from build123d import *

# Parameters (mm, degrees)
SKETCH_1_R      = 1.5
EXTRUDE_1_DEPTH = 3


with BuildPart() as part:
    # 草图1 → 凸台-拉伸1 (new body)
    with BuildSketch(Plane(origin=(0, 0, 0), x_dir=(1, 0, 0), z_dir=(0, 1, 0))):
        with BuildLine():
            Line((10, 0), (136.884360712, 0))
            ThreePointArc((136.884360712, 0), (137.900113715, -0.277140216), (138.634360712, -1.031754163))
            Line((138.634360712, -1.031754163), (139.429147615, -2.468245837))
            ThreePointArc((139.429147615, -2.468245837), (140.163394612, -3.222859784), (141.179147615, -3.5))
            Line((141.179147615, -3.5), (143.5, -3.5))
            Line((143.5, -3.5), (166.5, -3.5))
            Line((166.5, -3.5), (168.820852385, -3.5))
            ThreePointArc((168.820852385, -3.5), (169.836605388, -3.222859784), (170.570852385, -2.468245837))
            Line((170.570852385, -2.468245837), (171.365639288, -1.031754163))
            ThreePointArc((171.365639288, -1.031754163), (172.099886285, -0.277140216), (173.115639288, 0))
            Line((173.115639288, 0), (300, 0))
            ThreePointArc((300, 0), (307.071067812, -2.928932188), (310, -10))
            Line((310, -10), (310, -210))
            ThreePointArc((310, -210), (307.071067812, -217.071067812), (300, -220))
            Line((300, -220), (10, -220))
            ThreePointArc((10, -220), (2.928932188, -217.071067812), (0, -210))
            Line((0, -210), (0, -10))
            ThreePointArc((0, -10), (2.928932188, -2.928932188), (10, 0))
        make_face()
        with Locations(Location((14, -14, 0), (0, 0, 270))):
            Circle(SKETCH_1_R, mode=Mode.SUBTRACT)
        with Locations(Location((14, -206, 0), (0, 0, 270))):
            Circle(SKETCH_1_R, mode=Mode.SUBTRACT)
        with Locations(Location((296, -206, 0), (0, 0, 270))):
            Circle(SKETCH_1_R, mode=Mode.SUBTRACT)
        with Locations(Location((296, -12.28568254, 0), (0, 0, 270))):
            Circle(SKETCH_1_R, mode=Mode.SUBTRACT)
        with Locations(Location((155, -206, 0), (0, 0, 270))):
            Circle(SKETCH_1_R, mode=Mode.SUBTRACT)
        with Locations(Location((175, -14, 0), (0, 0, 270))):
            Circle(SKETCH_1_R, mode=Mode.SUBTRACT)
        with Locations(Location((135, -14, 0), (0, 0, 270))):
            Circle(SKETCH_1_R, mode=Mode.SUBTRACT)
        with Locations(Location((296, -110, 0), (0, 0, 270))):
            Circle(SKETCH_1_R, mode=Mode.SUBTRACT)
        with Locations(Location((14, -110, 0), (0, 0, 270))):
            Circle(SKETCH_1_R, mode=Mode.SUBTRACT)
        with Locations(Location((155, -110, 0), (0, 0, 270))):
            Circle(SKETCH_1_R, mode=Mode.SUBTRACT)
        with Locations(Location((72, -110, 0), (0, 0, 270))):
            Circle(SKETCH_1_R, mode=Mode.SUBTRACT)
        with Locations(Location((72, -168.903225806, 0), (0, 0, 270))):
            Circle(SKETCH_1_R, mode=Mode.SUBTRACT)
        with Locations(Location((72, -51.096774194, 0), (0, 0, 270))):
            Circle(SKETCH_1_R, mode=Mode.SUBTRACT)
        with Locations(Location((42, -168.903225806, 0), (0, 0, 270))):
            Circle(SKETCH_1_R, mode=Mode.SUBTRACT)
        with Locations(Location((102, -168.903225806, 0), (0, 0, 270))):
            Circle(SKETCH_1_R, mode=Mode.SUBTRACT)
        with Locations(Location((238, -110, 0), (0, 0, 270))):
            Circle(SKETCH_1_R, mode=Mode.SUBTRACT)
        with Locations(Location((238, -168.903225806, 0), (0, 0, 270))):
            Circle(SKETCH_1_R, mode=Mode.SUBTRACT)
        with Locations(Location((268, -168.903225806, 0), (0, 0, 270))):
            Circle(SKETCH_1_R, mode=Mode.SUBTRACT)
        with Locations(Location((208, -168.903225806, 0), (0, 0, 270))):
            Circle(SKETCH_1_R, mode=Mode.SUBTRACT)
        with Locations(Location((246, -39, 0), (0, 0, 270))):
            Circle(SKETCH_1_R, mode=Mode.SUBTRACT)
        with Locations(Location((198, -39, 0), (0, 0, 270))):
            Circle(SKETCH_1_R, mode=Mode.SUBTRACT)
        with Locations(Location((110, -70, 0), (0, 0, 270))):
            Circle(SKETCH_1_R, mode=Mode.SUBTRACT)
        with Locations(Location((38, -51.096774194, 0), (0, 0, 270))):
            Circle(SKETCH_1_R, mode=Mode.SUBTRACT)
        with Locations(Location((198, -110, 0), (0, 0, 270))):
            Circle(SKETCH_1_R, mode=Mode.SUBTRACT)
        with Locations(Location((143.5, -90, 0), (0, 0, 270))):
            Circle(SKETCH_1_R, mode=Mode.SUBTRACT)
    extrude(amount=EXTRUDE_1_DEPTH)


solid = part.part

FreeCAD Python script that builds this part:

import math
import FreeCAD as App
import Part
import Sketcher
Q = App.Units.Quantity

doc = App.newDocument("Part")
body = doc.addObject("PartDesign::Body", "Body")

# Sketch on XZ plane
sketch1 = body.newObject("Sketcher::SketchObject", "Sketch")
sketch1.AttachmentSupport = (doc.getObject("XZ_Plane"), [""])
sketch1.MapMode = "FlatFace"
sketch1.addGeometry(Part.LineSegment(App.Vector(136.9, 0, 0), App.Vector(10, 0, 0)), False)
sketch1.addGeometry(Part.ArcOfCircle(Part.Circle(App.Vector(10, 10, 0), App.Vector(0, 0, 1), 10), math.radians(180), math.radians(270)), False)
sketch1.addGeometry(Part.LineSegment(App.Vector(0, 10, 0), App.Vector(0, 210, 0)), False)
sketch1.addGeometry(Part.ArcOfCircle(Part.Circle(App.Vector(10, 210, 0), App.Vector(0, 0, 1), 10), math.radians(90), math.radians(180)), False)
sketch1.addGeometry(Part.LineSegment(App.Vector(10, 220, 0), App.Vector(300, 220, 0)), False)
sketch1.addGeometry(Part.ArcOfCircle(Part.Circle(App.Vector(300, 210, 0), App.Vector(0, 0, 1), 10), math.radians(0), math.radians(90)), False)
sketch1.addGeometry(Part.LineSegment(App.Vector(310, 210, 0), App.Vector(310, 10, 0)), False)
sketch1.addGeometry(Part.ArcOfCircle(Part.Circle(App.Vector(300, 10, 0), App.Vector(0, 0, 1), 10), math.radians(-90), math.radians(0)), False)
sketch1.addGeometry(Part.LineSegment(App.Vector(300, 0, 0), App.Vector(173.1, 0, 0)), False)
sketch1.addGeometry(Part.ArcOfCircle(Part.Circle(App.Vector(173.1, 2, 0), App.Vector(0, 0, 1), 2), math.radians(-151), math.radians(-90)), False)
sketch1.addGeometry(Part.LineSegment(App.Vector(171.4, 1, 0), App.Vector(170.6, 2.5, 0)), False)
sketch1.addGeometry(Part.ArcOfCircle(Part.Circle(App.Vector(168.8, 1.5, 0), App.Vector(0, 0, 1), 2), math.radians(29), math.radians(90)), False)
sketch1.addGeometry(Part.LineSegment(App.Vector(168.8, 3.5, 0), App.Vector(141.2, 3.5, 0)), False)
sketch1.addGeometry(Part.ArcOfCircle(Part.Circle(App.Vector(141.2, 1.5, 0), App.Vector(0, 0, 1), 2), math.radians(90), math.radians(151)), False)
sketch1.addGeometry(Part.LineSegment(App.Vector(139.4, 2.5, 0), App.Vector(138.6, 1, 0)), False)
sketch1.addGeometry(Part.ArcOfCircle(Part.Circle(App.Vector(136.9, 2, 0), App.Vector(0, 0, 1), 2), math.radians(-90), math.radians(-29)), False)
sketch1.addGeometry(Part.Circle(App.Vector(296, 206, 0), App.Vector(0, 0, 1), 1.5), False)
sketch1.addGeometry(Part.Circle(App.Vector(268, 168.9, 0), App.Vector(0, 0, 1), 1.5), False)
sketch1.addGeometry(Part.Circle(App.Vector(238, 168.9, 0), App.Vector(0, 0, 1), 1.5), False)
sketch1.addGeometry(Part.Circle(App.Vector(208, 168.9, 0), App.Vector(0, 0, 1), 1.5), False)
sketch1.addGeometry(Part.Circle(App.Vector(296, 110, 0), App.Vector(0, 0, 1), 1.5), False)
sketch1.addGeometry(Part.Circle(App.Vector(238, 110, 0), App.Vector(0, 0, 1), 1.5), False)
sketch1.addGeometry(Part.Circle(App.Vector(198, 110, 0), App.Vector(0, 0, 1), 1.5), False)
sketch1.addGeometry(Part.Circle(App.Vector(155, 206, 0), App.Vector(0, 0, 1), 1.5), False)
sketch1.addGeometry(Part.Circle(App.Vector(102, 168.9, 0), App.Vector(0, 0, 1), 1.5), False)
sketch1.addGeometry(Part.Circle(App.Vector(14, 206, 0), App.Vector(0, 0, 1), 1.5), False)
sketch1.addGeometry(Part.Circle(App.Vector(72, 168.9, 0), App.Vector(0, 0, 1), 1.5), False)
sketch1.addGeometry(Part.Circle(App.Vector(42, 168.9, 0), App.Vector(0, 0, 1), 1.5), False)
sketch1.addGeometry(Part.Circle(App.Vector(155, 110, 0), App.Vector(0, 0, 1), 1.5), False)
sketch1.addGeometry(Part.Circle(App.Vector(72, 110, 0), App.Vector(0, 0, 1), 1.5), False)
sketch1.addGeometry(Part.Circle(App.Vector(14, 110, 0), App.Vector(0, 0, 1), 1.5), False)
sketch1.addGeometry(Part.Circle(App.Vector(246, 39, 0), App.Vector(0, 0, 1), 1.5), False)
sketch1.addGeometry(Part.Circle(App.Vector(296, 12.3, 0), App.Vector(0, 0, 1), 1.5), False)
sketch1.addGeometry(Part.Circle(App.Vector(198, 39, 0), App.Vector(0, 0, 1), 1.5), False)
sketch1.addGeometry(Part.Circle(App.Vector(175, 14, 0), App.Vector(0, 0, 1), 1.5), False)
sketch1.addGeometry(Part.Circle(App.Vector(143.5, 90, 0), App.Vector(0, 0, 1), 1.5), False)
sketch1.addGeometry(Part.Circle(App.Vector(110, 70, 0), App.Vector(0, 0, 1), 1.5), False)
sketch1.addGeometry(Part.Circle(App.Vector(135, 14, 0), App.Vector(0, 0, 1), 1.5), False)
sketch1.addGeometry(Part.Circle(App.Vector(72, 51.1, 0), App.Vector(0, 0, 1), 1.5), False)
sketch1.addGeometry(Part.Circle(App.Vector(38, 51.1, 0), App.Vector(0, 0, 1), 1.5), False)
sketch1.addGeometry(Part.Circle(App.Vector(14, 14, 0), App.Vector(0, 0, 1), 1.5), False)
sketch1.addConstraint(Sketcher.Constraint("Tangent", 0, 2, 1, 2))
sketch1.addConstraint(Sketcher.Constraint("Tangent", 1, 1, 2, 1))
sketch1.addConstraint(Sketcher.Constraint("Tangent", 2, 2, 3, 2))
sketch1.addConstraint(Sketcher.Constraint("Tangent", 3, 1, 4, 1))
sketch1.addConstraint(Sketcher.Constraint("Tangent", 4, 2, 5, 2))
sketch1.addConstraint(Sketcher.Constraint("Tangent", 5, 1, 6, 1))
sketch1.addConstraint(Sketcher.Constraint("Tangent", 6, 2, 7, 2))
sketch1.addConstraint(Sketcher.Constraint("Tangent", 7, 1, 8, 1))
sketch1.addConstraint(Sketcher.Constraint("Tangent", 8, 2, 9, 2))
sketch1.addConstraint(Sketcher.Constraint("Tangent", 9, 1, 10, 1))
sketch1.addConstraint(Sketcher.Constraint("Tangent", 10, 2, 11, 1))
sketch1.addConstraint(Sketcher.Constraint("Tangent", 11, 2, 12, 1))
sketch1.addConstraint(Sketcher.Constraint("Tangent", 12, 2, 13, 1))
sketch1.addConstraint(Sketcher.Constraint("Tangent", 13, 2, 14, 1))
sketch1.addConstraint(Sketcher.Constraint("Tangent", 14, 2, 15, 2))
sketch1.addConstraint(Sketcher.Constraint("Tangent", 15, 1, 0, 1))
sketch1.addConstraint(Sketcher.Constraint("Horizontal", 0))
sketch1.addConstraint(Sketcher.Constraint("Vertical", 2))
sketch1.addConstraint(Sketcher.Constraint("Horizontal", 4))
sketch1.addConstraint(Sketcher.Constraint("Vertical", 6))
sketch1.addConstraint(Sketcher.Constraint("Horizontal", 8))
sketch1.addConstraint(Sketcher.Constraint("Horizontal", 12))
sketch1.addConstraint(Sketcher.Constraint("Equal", 1, 3))
sketch1.addConstraint(Sketcher.Constraint("Equal", 3, 5))
sketch1.addConstraint(Sketcher.Constraint("Equal", 5, 7))
sketch1.addConstraint(Sketcher.Constraint("Equal", 9, 11))
sketch1.addConstraint(Sketcher.Constraint("Equal", 11, 13))
sketch1.addConstraint(Sketcher.Constraint("Equal", 13, 15))
sketch1.addConstraint(Sketcher.Constraint("Equal", 16, 17))
sketch1.addConstraint(Sketcher.Constraint("Equal", 17, 18))
sketch1.addConstraint(Sketcher.Constraint("Equal", 18, 19))
sketch1.addConstraint(Sketcher.Constraint("Equal", 19, 20))
sketch1.addConstraint(Sketcher.Constraint("Equal", 20, 21))
sketch1.addConstraint(Sketcher.Constraint("Equal", 21, 22))
sketch1.addConstraint(Sketcher.Constraint("Equal", 22, 23))
sketch1.addConstraint(Sketcher.Constraint("Equal", 23, 24))
sketch1.addConstraint(Sketcher.Constraint("Equal", 24, 25))
sketch1.addConstraint(Sketcher.Constraint("Equal", 25, 26))
sketch1.addConstraint(Sketcher.Constraint("Equal", 26, 27))
sketch1.addConstraint(Sketcher.Constraint("Equal", 27, 28))
sketch1.addConstraint(Sketcher.Constraint("Equal", 28, 29))
sketch1.addConstraint(Sketcher.Constraint("Equal", 29, 30))
sketch1.addConstraint(Sketcher.Constraint("Equal", 30, 31))
sketch1.addConstraint(Sketcher.Constraint("Equal", 31, 32))
sketch1.addConstraint(Sketcher.Constraint("Equal", 32, 33))
sketch1.addConstraint(Sketcher.Constraint("Equal", 33, 34))
sketch1.addConstraint(Sketcher.Constraint("Equal", 34, 35))
sketch1.addConstraint(Sketcher.Constraint("Equal", 35, 36))
sketch1.addConstraint(Sketcher.Constraint("Equal", 36, 37))
sketch1.addConstraint(Sketcher.Constraint("Equal", 37, 38))
sketch1.addConstraint(Sketcher.Constraint("Equal", 38, 39))
sketch1.addConstraint(Sketcher.Constraint("Equal", 39, 40))
sketch1.addConstraint(Sketcher.Constraint("PointOnObject", 0, 2, -1))
sketch1.addConstraint(Sketcher.Constraint("PointOnObject", 1, 1, -2))
sketch1.addConstraint(Sketcher.Constraint("PointOnObject", 7, 1, -1))
sketch1.addConstraint(Sketcher.Constraint("Horizontal", 17, 3, 18, 3))
sketch1.addConstraint(Sketcher.Constraint("Horizontal", 18, 3, 19, 3))
sketch1.addConstraint(Sketcher.Constraint("Horizontal", 20, 3, 21, 3))
sketch1.addConstraint(Sketcher.Constraint("Horizontal", 21, 3, 22, 3))
sketch1.addConstraint(Sketcher.Constraint("Horizontal", 16, 3, 23, 3))
sketch1.addConstraint(Sketcher.Constraint("Horizontal", 19, 3, 24, 3))
sketch1.addConstraint(Sketcher.Constraint("Horizontal", 23, 3, 25, 3))
sketch1.addConstraint(Sketcher.Constraint("Horizontal", 24, 3, 26, 3))
sketch1.addConstraint(Sketcher.Constraint("Horizontal", 26, 3, 27, 3))
sketch1.addConstraint(Sketcher.Constraint("Horizontal", 22, 3, 28, 3))
sketch1.addConstraint(Sketcher.Constraint("Horizontal", 28, 3, 29, 3))
sketch1.addConstraint(Sketcher.Constraint("Horizontal", 29, 3, 30, 3))
sketch1.addConstraint(Sketcher.Constraint("Horizontal", 31, 3, 33, 3))
sketch1.addConstraint(Sketcher.Constraint("Horizontal", 34, 3, 37, 3))
sketch1.addConstraint(Sketcher.Constraint("Horizontal", 38, 3, 39, 3))
sketch1.addConstraint(Sketcher.Constraint("Horizontal", 37, 3, 40, 3))
sketch1.addConstraint(Sketcher.Constraint("Horizontal", 10, 2, 13, 2))
sketch1.addConstraint(Sketcher.Constraint("Vertical", 16, 3, 20, 3))
sketch1.addConstraint(Sketcher.Constraint("Vertical", 18, 3, 21, 3))
sketch1.addConstraint(Sketcher.Constraint("Vertical", 23, 3, 28, 3))
sketch1.addConstraint(Sketcher.Constraint("Vertical", 26, 3, 29, 3))
sketch1.addConstraint(Sketcher.Constraint("Vertical", 25, 3, 30, 3))
sketch1.addConstraint(Sketcher.Constraint("Vertical", 20, 3, 32, 3))
sketch1.addConstraint(Sketcher.Constraint("Vertical", 22, 3, 33, 3))
sketch1.addConstraint(Sketcher.Constraint("Vertical", 29, 3, 38, 3))
sketch1.addConstraint(Sketcher.Constraint("Vertical", 30, 3, 40, 3))
sketch1.addConstraint(Sketcher.Constraint("Equal", 0, 8))
sketch1.addConstraint(Sketcher.Constraint("Diameter", 16, Q("3 mm")))
sketch1.addConstraint(Sketcher.Constraint("Radius", 1, Q("10 mm")))
sketch1.addConstraint(Sketcher.Constraint("Radius", 9, Q("2 mm")))
sketch1.addConstraint(Sketcher.Constraint("DistanceX", 4, 1, 4, 2, Q("290 mm")))
sketch1.addConstraint(Sketcher.Constraint("DistanceY", 2, 1, 2, 2, Q("200 mm")))
sketch1.addConstraint(Sketcher.Constraint("DistanceX", -1, 1, 16, 3, Q("296 mm")))
sketch1.addConstraint(Sketcher.Constraint("DistanceY", -1, 1, 16, 3, Q("206 mm")))
sketch1.addConstraint(Sketcher.Constraint("DistanceX", -1, 1, 17, 3, Q("268 mm")))
sketch1.addConstraint(Sketcher.Constraint("DistanceX", -1, 1, 18, 3, Q("238 mm")))
sketch1.addConstraint(Sketcher.Constraint("DistanceX", -1, 1, 19, 3, Q("208 mm")))
sketch1.addConstraint(Sketcher.Constraint("DistanceY", -1, 1, 20, 3, Q("110 mm")))
sketch1.addConstraint(Sketcher.Constraint("DistanceX", -1, 1, 22, 3, Q("198 mm")))
sketch1.addConstraint(Sketcher.Constraint("DistanceX", -1, 1, 23, 3, Q("155 mm")))
sketch1.addConstraint(Sketcher.Constraint("DistanceX", -1, 1, 24, 3, Q("102 mm")))
sketch1.addConstraint(Sketcher.Constraint("DistanceX", -1, 1, 25, 3, Q("14 mm")))
sketch1.addConstraint(Sketcher.Constraint("DistanceX", -1, 1, 26, 3, Q("72 mm")))
sketch1.addConstraint(Sketcher.Constraint("DistanceX", -1, 1, 27, 3, Q("42 mm")))
sketch1.addConstraint(Sketcher.Constraint("DistanceX", -1, 1, 31, 3, Q("246 mm")))
sketch1.addConstraint(Sketcher.Constraint("DistanceY", -1, 1, 31, 3, Q("39 mm")))
sketch1.addConstraint(Sketcher.Constraint("DistanceX", -1, 1, 34, 3, Q("175 mm")))
sketch1.addConstraint(Sketcher.Constraint("DistanceY", -1, 1, 34, 3, Q("14 mm")))
sketch1.addConstraint(Sketcher.Constraint("DistanceY", -1, 1, 35, 3, Q("90 mm")))
sketch1.addConstraint(Sketcher.Constraint("DistanceX", -1, 1, 36, 3, Q("110 mm")))
sketch1.addConstraint(Sketcher.Constraint("DistanceY", -1, 1, 36, 3, Q("70 mm")))
sketch1.addConstraint(Sketcher.Constraint("DistanceX", -1, 1, 37, 3, Q("135 mm")))
sketch1.addConstraint(Sketcher.Constraint("DistanceX", -1, 1, 39, 3, Q("38 mm")))
sketch1.addConstraint(Sketcher.Constraint("DistanceY", -1, 1, 11, 3, Q("1.5 mm")))
sketch1.addConstraint(Sketcher.Constraint("DistanceX", -1, 1, 35, 3, Q("143.5 mm")))
sketch1.addConstraint(Sketcher.Constraint("DistanceX", 9, 1, 9, 3, Q("1.75 mm")))
sketch1.addConstraint(Sketcher.Constraint("DistanceX", 0, 2, 0, 1, Q("126.884361 mm")))
sketch1.addConstraint(Sketcher.Constraint("DistanceY", -1, 1, 17, 3, Q("168.903226 mm")))
sketch1.addConstraint(Sketcher.Constraint("DistanceY", -1, 1, 32, 3, Q("12.285683 mm")))
sketch1.addConstraint(Sketcher.Constraint("DistanceY", -1, 1, 38, 3, Q("51.096774 mm")))
pad1 = body.newObject("PartDesign::Pad", "Pad")
pad1.Profile = sketch1
pad1.Length = 3
pad1.Reversed = True

doc.recompute()
